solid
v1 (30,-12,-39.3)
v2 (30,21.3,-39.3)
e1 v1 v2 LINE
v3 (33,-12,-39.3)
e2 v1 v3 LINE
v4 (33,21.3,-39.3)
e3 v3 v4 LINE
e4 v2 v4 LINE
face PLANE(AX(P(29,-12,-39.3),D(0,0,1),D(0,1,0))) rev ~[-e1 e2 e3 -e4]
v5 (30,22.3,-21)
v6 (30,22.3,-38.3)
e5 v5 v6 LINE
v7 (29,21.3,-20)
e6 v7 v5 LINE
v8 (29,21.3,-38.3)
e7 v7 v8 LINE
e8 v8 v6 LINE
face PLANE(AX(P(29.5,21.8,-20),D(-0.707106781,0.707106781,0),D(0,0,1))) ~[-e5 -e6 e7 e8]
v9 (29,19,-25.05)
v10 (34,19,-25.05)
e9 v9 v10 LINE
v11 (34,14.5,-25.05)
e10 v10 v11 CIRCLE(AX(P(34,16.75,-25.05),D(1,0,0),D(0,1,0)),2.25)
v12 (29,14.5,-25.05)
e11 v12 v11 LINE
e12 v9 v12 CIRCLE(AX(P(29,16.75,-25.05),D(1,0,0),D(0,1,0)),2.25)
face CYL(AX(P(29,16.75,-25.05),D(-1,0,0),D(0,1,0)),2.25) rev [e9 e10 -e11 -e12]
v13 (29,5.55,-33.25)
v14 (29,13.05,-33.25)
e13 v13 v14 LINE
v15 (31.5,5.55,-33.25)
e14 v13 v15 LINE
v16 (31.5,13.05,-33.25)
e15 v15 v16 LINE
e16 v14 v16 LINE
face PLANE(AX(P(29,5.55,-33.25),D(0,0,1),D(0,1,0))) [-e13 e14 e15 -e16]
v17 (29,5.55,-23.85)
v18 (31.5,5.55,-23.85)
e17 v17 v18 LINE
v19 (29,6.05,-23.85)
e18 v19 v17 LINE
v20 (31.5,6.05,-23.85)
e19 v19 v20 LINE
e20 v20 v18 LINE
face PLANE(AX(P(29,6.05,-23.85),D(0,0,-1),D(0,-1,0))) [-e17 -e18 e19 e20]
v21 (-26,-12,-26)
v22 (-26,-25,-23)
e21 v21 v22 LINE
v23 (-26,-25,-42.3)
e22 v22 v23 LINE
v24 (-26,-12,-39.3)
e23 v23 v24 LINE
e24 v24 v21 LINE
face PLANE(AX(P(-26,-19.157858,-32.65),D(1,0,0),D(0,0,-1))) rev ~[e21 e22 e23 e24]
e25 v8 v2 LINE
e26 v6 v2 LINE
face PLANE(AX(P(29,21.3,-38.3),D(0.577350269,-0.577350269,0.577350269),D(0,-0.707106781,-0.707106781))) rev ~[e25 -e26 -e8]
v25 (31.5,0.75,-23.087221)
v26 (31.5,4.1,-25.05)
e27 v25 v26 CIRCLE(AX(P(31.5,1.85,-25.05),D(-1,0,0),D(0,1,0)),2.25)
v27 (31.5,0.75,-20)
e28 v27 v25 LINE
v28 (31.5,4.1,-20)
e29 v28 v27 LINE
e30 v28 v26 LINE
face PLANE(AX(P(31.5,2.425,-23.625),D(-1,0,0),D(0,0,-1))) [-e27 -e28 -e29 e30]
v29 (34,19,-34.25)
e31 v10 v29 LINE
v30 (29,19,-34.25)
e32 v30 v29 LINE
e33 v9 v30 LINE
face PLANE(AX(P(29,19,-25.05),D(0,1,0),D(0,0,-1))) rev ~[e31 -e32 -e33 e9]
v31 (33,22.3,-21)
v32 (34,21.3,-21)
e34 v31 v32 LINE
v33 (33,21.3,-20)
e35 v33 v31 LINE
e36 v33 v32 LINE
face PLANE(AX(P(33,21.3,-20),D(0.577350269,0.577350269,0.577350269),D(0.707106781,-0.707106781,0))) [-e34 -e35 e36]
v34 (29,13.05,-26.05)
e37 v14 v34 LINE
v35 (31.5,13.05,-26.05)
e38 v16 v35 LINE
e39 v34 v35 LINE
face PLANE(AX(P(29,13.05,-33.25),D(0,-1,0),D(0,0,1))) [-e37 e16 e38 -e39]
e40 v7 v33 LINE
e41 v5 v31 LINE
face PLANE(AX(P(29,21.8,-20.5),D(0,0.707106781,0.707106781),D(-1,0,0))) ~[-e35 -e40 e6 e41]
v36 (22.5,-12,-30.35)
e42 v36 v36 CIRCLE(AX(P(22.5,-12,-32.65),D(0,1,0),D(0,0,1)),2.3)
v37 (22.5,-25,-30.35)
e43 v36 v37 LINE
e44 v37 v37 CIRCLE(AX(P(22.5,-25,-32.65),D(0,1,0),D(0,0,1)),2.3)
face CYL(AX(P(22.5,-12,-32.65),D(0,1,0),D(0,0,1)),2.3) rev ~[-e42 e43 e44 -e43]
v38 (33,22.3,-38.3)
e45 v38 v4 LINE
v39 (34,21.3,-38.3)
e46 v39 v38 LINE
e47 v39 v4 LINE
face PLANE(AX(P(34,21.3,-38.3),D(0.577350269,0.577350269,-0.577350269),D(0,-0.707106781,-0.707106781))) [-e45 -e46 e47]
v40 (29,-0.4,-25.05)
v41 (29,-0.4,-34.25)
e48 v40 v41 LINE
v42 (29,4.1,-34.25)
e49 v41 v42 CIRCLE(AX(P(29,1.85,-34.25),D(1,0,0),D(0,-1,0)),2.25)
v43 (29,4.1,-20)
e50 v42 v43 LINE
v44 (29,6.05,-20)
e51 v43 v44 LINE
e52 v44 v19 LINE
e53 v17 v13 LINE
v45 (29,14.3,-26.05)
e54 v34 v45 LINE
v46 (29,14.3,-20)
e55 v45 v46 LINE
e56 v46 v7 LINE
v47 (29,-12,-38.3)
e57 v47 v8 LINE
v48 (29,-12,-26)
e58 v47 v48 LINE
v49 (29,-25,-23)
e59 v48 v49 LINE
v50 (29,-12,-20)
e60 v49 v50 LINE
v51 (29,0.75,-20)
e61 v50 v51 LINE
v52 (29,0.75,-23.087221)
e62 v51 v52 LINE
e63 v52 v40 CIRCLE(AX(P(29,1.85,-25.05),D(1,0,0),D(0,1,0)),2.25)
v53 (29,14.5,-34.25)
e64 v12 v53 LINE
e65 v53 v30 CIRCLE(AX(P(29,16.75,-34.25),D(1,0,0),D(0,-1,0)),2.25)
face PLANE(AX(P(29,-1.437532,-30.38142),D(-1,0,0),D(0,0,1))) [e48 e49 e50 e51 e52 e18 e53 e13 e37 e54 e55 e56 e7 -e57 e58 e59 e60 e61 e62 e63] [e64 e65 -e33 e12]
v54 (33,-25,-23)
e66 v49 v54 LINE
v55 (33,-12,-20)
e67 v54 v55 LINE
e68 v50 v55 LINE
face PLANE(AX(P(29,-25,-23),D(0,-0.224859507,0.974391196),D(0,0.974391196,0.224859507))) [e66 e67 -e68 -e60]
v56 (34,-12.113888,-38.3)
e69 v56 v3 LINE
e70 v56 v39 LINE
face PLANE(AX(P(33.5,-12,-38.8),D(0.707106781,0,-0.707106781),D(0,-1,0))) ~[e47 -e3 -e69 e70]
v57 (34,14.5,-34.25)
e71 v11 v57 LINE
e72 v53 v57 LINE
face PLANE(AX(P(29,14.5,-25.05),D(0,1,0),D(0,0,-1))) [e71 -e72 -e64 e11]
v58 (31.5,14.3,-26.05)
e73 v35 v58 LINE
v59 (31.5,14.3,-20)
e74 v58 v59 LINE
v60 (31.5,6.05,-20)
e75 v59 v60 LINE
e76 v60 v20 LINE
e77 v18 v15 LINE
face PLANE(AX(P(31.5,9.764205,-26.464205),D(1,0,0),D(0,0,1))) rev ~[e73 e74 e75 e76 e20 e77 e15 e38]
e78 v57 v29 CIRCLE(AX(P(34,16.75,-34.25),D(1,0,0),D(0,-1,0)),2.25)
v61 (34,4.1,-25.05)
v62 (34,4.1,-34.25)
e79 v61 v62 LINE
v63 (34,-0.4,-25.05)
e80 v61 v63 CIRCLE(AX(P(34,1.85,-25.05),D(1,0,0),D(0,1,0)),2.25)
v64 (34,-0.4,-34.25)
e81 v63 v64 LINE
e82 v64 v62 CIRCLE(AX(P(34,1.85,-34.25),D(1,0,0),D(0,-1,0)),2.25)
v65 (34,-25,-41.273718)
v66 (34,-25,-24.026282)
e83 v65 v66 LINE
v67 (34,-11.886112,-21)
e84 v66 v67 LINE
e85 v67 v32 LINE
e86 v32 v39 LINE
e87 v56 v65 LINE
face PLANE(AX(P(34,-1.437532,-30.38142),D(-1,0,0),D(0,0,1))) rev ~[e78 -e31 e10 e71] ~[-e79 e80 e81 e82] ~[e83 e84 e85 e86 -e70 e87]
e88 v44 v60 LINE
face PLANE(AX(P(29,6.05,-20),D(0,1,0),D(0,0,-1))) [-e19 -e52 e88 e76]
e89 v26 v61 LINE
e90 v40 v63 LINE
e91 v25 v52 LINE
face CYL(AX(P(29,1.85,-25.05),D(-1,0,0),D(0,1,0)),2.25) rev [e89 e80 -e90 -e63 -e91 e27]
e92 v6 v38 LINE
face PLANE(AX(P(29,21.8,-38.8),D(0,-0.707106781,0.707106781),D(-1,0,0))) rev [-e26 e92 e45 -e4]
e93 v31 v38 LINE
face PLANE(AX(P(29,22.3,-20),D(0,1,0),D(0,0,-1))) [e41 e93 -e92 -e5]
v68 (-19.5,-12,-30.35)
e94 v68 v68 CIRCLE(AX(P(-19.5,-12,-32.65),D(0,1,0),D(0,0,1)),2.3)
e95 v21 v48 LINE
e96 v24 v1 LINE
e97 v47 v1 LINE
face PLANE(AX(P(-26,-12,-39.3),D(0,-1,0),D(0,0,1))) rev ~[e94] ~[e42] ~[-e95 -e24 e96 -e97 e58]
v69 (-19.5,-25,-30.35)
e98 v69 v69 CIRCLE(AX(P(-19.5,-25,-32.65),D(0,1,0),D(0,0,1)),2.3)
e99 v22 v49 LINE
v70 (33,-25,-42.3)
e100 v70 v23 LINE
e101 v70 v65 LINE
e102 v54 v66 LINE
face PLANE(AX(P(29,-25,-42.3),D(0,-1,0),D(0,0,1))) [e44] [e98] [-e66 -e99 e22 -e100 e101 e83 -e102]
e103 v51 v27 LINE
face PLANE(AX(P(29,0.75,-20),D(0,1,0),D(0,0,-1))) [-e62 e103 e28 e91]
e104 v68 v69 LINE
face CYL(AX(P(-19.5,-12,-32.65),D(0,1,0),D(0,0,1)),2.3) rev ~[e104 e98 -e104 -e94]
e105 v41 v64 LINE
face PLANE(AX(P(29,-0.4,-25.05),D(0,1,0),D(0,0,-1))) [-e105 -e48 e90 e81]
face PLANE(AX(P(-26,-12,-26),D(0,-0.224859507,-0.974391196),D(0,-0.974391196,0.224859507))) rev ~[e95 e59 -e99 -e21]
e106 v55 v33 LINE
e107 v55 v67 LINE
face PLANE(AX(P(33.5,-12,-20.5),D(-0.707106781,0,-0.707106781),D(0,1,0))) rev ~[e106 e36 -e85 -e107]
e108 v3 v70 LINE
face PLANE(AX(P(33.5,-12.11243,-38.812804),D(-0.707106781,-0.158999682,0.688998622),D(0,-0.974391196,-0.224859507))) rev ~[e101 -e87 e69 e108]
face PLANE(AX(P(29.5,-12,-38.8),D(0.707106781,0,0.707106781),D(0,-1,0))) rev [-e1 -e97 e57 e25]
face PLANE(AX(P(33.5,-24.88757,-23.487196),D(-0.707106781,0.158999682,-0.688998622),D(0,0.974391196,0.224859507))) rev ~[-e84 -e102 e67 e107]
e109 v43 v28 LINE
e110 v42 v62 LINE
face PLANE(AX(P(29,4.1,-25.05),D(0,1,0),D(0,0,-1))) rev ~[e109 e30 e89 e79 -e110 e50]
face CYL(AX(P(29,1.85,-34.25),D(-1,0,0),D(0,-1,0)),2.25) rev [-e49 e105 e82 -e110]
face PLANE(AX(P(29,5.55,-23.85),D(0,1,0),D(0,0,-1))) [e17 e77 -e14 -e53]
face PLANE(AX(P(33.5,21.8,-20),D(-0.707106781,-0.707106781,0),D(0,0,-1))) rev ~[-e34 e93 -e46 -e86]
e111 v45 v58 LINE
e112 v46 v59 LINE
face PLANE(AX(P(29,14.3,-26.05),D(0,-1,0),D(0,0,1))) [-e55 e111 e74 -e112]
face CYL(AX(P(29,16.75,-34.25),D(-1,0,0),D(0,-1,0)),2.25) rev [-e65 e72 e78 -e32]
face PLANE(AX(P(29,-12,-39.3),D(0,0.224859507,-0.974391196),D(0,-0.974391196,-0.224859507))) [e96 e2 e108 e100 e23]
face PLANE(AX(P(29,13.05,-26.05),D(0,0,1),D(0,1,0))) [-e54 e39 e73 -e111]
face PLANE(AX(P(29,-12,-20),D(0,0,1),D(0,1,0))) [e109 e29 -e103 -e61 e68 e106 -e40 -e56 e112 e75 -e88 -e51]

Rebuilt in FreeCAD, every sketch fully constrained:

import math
import FreeCAD as App
import Part
import Sketcher
from FreeCAD import Vector


def edges_at(feature, points):
    """Names of the edges that pass closest to the given points."""
    edges = feature.Shape.Edges
    near = lambda p: min(range(len(edges)), key=lambda i: edges[i].distToShape(Part.Vertex(*p))[0])
    return sorted({f"Edge{near(p) + 1}" for p in points})


def add_polygon(sketch, points):
    """Adds a closed chain of lines whose ends are joined by coincident constraints."""
    first, n = sketch.GeometryCount, len(points)
    for a, b in zip(points, points[1:] + points[:1]):
        sketch.addGeometry(Part.LineSegment(App.Vector(*a, 0), App.Vector(*b, 0)), False)
    for i in range(n):
        sketch.addConstraint(Sketcher.Constraint("Coincident", first + i, 2, first + (i + 1) % n, 1))

doc = App.newDocument("Part")
body = doc.addObject("PartDesign::Body", "Body")

# Sketch on XZ plane
sketch1 = body.newObject("Sketcher::SketchObject", "Sketch")
sketch1.AttachmentSupport = (doc.getObject("XZ_Plane"), [""])
sketch1.MapMode = "FlatFace"
add_polygon(sketch1, [(0, 0), (19, 0), (16, 13), (3, 13)])  # lines 0-3
sketch1.addConstraint([
    Sketcher.Constraint("Horizontal", 0),
    Sketcher.Constraint("Horizontal", 2),
    Sketcher.Constraint("Coincident", 3, 2, -1, 1),
    Sketcher.Constraint("Equal", 1, 3),
    Sketcher.Constraint("DistanceX", 0, 1, 0, 2, 19.3),
    Sketcher.Constraint("DistanceX", 2, 2, 2, 1, 13.3),
    Sketcher.Constraint("DistanceY", -1, 1, 1, 2, 13.0),
])
pad1 = body.newObject("PartDesign::Pad", "Pad")
pad1.Profile = sketch1
pad1.Length = 55

# Sketch on XY plane
sketch2 = body.newObject("Sketcher::SketchObject", "Sketch001")
sketch2.AttachmentSupport = (doc.getObject("XY_Plane"), [""])
sketch2.MapMode = "FlatFace"
sketch2.AttachmentOffset = App.Placement(Vector(0, 0, 13), App.Rotation())
sketch2.addGeometry([
    Part.Circle(Vector(9.7, -6.5, 0), Vector(0, 0, 1), 2.3),
    Part.Circle(Vector(9.7, -48.5, 0), Vector(0, 0, 1), 2.3),
], False)
sketch2.addConstraint([
    Sketcher.Constraint("Equal", 0, 1),
    Sketcher.Constraint("Vertical", 0, 3, 1, 3),
    Sketcher.Constraint("Diameter", 0, 4.6),
    Sketcher.Constraint("DistanceY", 1, 3, 0, 3, 42.0),
    Sketcher.Constraint("DistanceY", 0, 3, -1, 1, 6.5),
    Sketcher.Constraint("DistanceX", -1, 1, 0, 3, 9.65),
])
pocket1 = body.newObject("PartDesign::Pocket", "Pocket")
pocket1.Profile = sketch2
pocket1.Type = "ThroughAll"

# Sketch on XZ plane
sketch3 = body.newObject("Sketcher::SketchObject", "Sketch002")
sketch3.AttachmentSupport = (doc.getObject("XZ_Plane"), [""])
sketch3.MapMode = "FlatFace"
sketch3.AttachmentOffset = App.Placement(Vector(0, 0, 55), App.Rotation())
add_polygon(sketch3, [(19.3, 0), (16.3, 13), (16.3, 47.3), (-3, 47.3), (-3, 13), (0, 0)])  # lines 0-5
sketch3.addGeometry(Part.LineSegment(Vector(2, 29.1, 0), Vector(11.2, 29.1, 0)), False)  # 6
sketch3.addGeometry(Part.ArcOfCircle(Part.Circle(Vector(11.2, 26.9, 0), Vector(0, 0, 1), 2.2), math.radians(-90), math.radians(90)), False)  # 7
sketch3.addGeometry(Part.LineSegment(Vector(11.2, 24.6, 0), Vector(2, 24.6, 0)), False)  # 8
sketch3.addGeometry(Part.ArcOfCircle(Part.Circle(Vector(2, 26.9, 0), Vector(0, 0, 1), 2.2), math.radians(90), math.radians(270)), False)  # 9
sketch3.addGeometry(Part.LineSegment(Vector(2, 44, 0), Vector(11.2, 44, 0)), False)  # 10
sketch3.addGeometry(Part.ArcOfCircle(Part.Circle(Vector(11.2, 41.8, 0), Vector(0, 0, 1), 2.2), math.radians(-90), math.radians(90)), False)  # 11
sketch3.addGeometry(Part.LineSegment(Vector(11.2, 39.5, 0), Vector(2, 39.5, 0)), False)  # 12
sketch3.addGeometry(Part.ArcOfCircle(Part.Circle(Vector(2, 41.8, 0), Vector(0, 0, 1), 2.2), math.radians(90), math.radians(270)), False)  # 13
sketch3.addConstraint([
    Sketcher.Constraint("Tangent", 6, 2, 7, 2),
    Sketcher.Constraint("Tangent", 7, 1, 8, 1),
    Sketcher.Constraint("Tangent", 8, 2, 9, 2),
    Sketcher.Constraint("Tangent", 9, 1, 6, 1),
    Sketcher.Constraint("Tangent", 10, 2, 11, 2),
    Sketcher.Constraint("Tangent", 11, 1, 12, 1),
    Sketcher.Constraint("Tangent", 12, 2, 13, 2),
    Sketcher.Constraint("Tangent", 13, 1, 10, 1),
    Sketcher.Constraint("Vertical", 1),
    Sketcher.Constraint("Horizontal", 2),
    Sketcher.Constraint("Vertical", 3),
    Sketcher.Constraint("Horizontal", 5),
    Sketcher.Constraint("Horizontal", 6),
    Sketcher.Constraint("Horizontal", 8),
    Sketcher.Constraint("Horizontal", 10),
    Sketcher.Constraint("Horizontal", 12),
    Sketcher.Constraint("Coincident", 4, 2, -1, 1),
    Sketcher.Constraint("Equal", 9, 11),
    Sketcher.Constraint("Parallel", 0, 4),
    Sketcher.Constraint("Horizontal", 0, 2, 3, 2),
    Sketcher.Constraint("Vertical", 7, 3, 11, 3),
    Sketcher.Constraint("Vertical", 9, 3, 13, 3),
    Sketcher.Constraint("Radius", 7, 2.25),
    Sketcher.Constraint("DistanceX", 2, 2, 2, 1, 19.3),
    Sketcher.Constraint("DistanceX", 6, 1, 6, 2, 9.2),
    Sketcher.Constraint("DistanceY", 1, 1, 1, 2, 34.3),
    Sketcher.Constraint("DistanceY", -1, 1, 0, 2, 13.0),
    Sketcher.Constraint("DistanceX", 2, 2, -1, 1, 3.0),
    Sketcher.Constraint("DistanceY", -1, 1, 10, 2, 44.0),
    Sketcher.Constraint("DistanceY", -1, 1, 6, 2, 29.1),
    Sketcher.Constraint("DistanceX", -1, 1, 7, 3, 11.25),
])
pad2 = body.newObject("PartDesign::Pad", "Pad001")
pad2.Profile = sketch3
pad2.Length = 5

# Sketch on XZ plane
sketch4 = body.newObject("Sketcher::SketchObject", "Sketch003")
sketch4.AttachmentSupport = (doc.getObject("XZ_Plane"), [""])
sketch4.MapMode = "FlatFace"
sketch4.AttachmentOffset = App.Placement(Vector(0, 0, 55), App.Rotation())
add_polygon(sketch4, [(10.2, 38), (10.2, 30.6), (0.8, 30.6), (0.8, 31.1), (-3, 31.1), (-3, 39.3), (3, 39.3), (3, 38)])  # lines 0-7
add_polygon(sketch4, [(-3, 25.8), (-3, 29.1), (4.2, 29.1), (4.2, 25.8)])  # lines 8-11
sketch4.addConstraint([
    Sketcher.Constraint("Vertical", 0),
    Sketcher.Constraint("Horizontal", 1),
    Sketcher.Constraint("Vertical", 2),
    Sketcher.Constraint("Horizontal", 3),
    Sketcher.Constraint("Vertical", 4),
    Sketcher.Constraint("Horizontal", 5),
    Sketcher.Constraint("Vertical", 6),
    Sketcher.Constraint("Horizontal", 7),
    Sketcher.Constraint("Vertical", 8),
    Sketcher.Constraint("Horizontal", 9),
    Sketcher.Constraint("Vertical", 10),
    Sketcher.Constraint("Horizontal", 11),
    Sketcher.Constraint("Vertical", 4, 2, 8, 2),
    Sketcher.Constraint("DistanceX", 1, 2, 1, 1, 9.4),
    Sketcher.Constraint("DistanceX", 7, 1, 7, 2, 7.2),
    Sketcher.Constraint("DistanceY", 0, 2, 0, 1, 7.5),
    Sketcher.Constraint("DistanceY", 2, 1, 2, 2, 0.5),
    Sketcher.Constraint("DistanceX", 3, 2, -1, 1, 3.0),
    Sketcher.Constraint("DistanceX", 9, 2, 0, 2, 6.0),
    Sketcher.Constraint("DistanceX", 3, 2, 3, 1, 3.85),
    Sketcher.Constraint("DistanceY", 4, 1, 4, 2, 8.25),
    Sketcher.Constraint("DistanceY", 8, 1, 8, 2, 3.35),
    Sketcher.Constraint("DistanceY", -1, 1, 4, 2, 39.3),
    Sketcher.Constraint("DistanceY", -1, 1, 8, 2, 29.1),
])
pocket2 = body.newObject("PartDesign::Pocket", "Pocket001")
pocket2.Profile = sketch4
pocket2.Length = 2.5
pocket2.Reversed = True
doc.recompute()

chamfer = body.newObject("PartDesign::Chamfer", "Chamfer")
chamfer.Base = (pocket2, edges_at(pocket2, [
    (16.3, -57.5, 47.3),
    (6.65, -60, 47.3),
    (6.65, -55, 47.3),
    (-3, -57.5, 47.3),
    (-3, -60, 30.15),
    (16.3, -60, 30.15),
    (-1.5, -60, 6.5),
    (17.8, -60, 6.5),
    (16.3, -55, 30.15),
]))
chamfer.Size = 1
body2 = doc.addObject("PartDesign::Body", "Body001")
doc.recompute()

body.Placement = App.Placement(Vector(0, 0, 0), App.Rotation(Vector(0, 1, 0), 90))
boolean = body2.newObject("PartDesign::Boolean", "Boolean")
boolean.Type = "Fuse"
boolean.addObjects([body])
body3 = doc.addObject("PartDesign::Body", "Body002")
doc.recompute()

body2.Placement = App.Placement(Vector(-26, -25, -23), App.Rotation(Vector(0, 0, 1), 90))
boolean2 = body3.newObject("PartDesign::Boolean", "Boolean001")
boolean2.Type = "Fuse"
boolean2.addObjects([body2])

doc.recompute()
